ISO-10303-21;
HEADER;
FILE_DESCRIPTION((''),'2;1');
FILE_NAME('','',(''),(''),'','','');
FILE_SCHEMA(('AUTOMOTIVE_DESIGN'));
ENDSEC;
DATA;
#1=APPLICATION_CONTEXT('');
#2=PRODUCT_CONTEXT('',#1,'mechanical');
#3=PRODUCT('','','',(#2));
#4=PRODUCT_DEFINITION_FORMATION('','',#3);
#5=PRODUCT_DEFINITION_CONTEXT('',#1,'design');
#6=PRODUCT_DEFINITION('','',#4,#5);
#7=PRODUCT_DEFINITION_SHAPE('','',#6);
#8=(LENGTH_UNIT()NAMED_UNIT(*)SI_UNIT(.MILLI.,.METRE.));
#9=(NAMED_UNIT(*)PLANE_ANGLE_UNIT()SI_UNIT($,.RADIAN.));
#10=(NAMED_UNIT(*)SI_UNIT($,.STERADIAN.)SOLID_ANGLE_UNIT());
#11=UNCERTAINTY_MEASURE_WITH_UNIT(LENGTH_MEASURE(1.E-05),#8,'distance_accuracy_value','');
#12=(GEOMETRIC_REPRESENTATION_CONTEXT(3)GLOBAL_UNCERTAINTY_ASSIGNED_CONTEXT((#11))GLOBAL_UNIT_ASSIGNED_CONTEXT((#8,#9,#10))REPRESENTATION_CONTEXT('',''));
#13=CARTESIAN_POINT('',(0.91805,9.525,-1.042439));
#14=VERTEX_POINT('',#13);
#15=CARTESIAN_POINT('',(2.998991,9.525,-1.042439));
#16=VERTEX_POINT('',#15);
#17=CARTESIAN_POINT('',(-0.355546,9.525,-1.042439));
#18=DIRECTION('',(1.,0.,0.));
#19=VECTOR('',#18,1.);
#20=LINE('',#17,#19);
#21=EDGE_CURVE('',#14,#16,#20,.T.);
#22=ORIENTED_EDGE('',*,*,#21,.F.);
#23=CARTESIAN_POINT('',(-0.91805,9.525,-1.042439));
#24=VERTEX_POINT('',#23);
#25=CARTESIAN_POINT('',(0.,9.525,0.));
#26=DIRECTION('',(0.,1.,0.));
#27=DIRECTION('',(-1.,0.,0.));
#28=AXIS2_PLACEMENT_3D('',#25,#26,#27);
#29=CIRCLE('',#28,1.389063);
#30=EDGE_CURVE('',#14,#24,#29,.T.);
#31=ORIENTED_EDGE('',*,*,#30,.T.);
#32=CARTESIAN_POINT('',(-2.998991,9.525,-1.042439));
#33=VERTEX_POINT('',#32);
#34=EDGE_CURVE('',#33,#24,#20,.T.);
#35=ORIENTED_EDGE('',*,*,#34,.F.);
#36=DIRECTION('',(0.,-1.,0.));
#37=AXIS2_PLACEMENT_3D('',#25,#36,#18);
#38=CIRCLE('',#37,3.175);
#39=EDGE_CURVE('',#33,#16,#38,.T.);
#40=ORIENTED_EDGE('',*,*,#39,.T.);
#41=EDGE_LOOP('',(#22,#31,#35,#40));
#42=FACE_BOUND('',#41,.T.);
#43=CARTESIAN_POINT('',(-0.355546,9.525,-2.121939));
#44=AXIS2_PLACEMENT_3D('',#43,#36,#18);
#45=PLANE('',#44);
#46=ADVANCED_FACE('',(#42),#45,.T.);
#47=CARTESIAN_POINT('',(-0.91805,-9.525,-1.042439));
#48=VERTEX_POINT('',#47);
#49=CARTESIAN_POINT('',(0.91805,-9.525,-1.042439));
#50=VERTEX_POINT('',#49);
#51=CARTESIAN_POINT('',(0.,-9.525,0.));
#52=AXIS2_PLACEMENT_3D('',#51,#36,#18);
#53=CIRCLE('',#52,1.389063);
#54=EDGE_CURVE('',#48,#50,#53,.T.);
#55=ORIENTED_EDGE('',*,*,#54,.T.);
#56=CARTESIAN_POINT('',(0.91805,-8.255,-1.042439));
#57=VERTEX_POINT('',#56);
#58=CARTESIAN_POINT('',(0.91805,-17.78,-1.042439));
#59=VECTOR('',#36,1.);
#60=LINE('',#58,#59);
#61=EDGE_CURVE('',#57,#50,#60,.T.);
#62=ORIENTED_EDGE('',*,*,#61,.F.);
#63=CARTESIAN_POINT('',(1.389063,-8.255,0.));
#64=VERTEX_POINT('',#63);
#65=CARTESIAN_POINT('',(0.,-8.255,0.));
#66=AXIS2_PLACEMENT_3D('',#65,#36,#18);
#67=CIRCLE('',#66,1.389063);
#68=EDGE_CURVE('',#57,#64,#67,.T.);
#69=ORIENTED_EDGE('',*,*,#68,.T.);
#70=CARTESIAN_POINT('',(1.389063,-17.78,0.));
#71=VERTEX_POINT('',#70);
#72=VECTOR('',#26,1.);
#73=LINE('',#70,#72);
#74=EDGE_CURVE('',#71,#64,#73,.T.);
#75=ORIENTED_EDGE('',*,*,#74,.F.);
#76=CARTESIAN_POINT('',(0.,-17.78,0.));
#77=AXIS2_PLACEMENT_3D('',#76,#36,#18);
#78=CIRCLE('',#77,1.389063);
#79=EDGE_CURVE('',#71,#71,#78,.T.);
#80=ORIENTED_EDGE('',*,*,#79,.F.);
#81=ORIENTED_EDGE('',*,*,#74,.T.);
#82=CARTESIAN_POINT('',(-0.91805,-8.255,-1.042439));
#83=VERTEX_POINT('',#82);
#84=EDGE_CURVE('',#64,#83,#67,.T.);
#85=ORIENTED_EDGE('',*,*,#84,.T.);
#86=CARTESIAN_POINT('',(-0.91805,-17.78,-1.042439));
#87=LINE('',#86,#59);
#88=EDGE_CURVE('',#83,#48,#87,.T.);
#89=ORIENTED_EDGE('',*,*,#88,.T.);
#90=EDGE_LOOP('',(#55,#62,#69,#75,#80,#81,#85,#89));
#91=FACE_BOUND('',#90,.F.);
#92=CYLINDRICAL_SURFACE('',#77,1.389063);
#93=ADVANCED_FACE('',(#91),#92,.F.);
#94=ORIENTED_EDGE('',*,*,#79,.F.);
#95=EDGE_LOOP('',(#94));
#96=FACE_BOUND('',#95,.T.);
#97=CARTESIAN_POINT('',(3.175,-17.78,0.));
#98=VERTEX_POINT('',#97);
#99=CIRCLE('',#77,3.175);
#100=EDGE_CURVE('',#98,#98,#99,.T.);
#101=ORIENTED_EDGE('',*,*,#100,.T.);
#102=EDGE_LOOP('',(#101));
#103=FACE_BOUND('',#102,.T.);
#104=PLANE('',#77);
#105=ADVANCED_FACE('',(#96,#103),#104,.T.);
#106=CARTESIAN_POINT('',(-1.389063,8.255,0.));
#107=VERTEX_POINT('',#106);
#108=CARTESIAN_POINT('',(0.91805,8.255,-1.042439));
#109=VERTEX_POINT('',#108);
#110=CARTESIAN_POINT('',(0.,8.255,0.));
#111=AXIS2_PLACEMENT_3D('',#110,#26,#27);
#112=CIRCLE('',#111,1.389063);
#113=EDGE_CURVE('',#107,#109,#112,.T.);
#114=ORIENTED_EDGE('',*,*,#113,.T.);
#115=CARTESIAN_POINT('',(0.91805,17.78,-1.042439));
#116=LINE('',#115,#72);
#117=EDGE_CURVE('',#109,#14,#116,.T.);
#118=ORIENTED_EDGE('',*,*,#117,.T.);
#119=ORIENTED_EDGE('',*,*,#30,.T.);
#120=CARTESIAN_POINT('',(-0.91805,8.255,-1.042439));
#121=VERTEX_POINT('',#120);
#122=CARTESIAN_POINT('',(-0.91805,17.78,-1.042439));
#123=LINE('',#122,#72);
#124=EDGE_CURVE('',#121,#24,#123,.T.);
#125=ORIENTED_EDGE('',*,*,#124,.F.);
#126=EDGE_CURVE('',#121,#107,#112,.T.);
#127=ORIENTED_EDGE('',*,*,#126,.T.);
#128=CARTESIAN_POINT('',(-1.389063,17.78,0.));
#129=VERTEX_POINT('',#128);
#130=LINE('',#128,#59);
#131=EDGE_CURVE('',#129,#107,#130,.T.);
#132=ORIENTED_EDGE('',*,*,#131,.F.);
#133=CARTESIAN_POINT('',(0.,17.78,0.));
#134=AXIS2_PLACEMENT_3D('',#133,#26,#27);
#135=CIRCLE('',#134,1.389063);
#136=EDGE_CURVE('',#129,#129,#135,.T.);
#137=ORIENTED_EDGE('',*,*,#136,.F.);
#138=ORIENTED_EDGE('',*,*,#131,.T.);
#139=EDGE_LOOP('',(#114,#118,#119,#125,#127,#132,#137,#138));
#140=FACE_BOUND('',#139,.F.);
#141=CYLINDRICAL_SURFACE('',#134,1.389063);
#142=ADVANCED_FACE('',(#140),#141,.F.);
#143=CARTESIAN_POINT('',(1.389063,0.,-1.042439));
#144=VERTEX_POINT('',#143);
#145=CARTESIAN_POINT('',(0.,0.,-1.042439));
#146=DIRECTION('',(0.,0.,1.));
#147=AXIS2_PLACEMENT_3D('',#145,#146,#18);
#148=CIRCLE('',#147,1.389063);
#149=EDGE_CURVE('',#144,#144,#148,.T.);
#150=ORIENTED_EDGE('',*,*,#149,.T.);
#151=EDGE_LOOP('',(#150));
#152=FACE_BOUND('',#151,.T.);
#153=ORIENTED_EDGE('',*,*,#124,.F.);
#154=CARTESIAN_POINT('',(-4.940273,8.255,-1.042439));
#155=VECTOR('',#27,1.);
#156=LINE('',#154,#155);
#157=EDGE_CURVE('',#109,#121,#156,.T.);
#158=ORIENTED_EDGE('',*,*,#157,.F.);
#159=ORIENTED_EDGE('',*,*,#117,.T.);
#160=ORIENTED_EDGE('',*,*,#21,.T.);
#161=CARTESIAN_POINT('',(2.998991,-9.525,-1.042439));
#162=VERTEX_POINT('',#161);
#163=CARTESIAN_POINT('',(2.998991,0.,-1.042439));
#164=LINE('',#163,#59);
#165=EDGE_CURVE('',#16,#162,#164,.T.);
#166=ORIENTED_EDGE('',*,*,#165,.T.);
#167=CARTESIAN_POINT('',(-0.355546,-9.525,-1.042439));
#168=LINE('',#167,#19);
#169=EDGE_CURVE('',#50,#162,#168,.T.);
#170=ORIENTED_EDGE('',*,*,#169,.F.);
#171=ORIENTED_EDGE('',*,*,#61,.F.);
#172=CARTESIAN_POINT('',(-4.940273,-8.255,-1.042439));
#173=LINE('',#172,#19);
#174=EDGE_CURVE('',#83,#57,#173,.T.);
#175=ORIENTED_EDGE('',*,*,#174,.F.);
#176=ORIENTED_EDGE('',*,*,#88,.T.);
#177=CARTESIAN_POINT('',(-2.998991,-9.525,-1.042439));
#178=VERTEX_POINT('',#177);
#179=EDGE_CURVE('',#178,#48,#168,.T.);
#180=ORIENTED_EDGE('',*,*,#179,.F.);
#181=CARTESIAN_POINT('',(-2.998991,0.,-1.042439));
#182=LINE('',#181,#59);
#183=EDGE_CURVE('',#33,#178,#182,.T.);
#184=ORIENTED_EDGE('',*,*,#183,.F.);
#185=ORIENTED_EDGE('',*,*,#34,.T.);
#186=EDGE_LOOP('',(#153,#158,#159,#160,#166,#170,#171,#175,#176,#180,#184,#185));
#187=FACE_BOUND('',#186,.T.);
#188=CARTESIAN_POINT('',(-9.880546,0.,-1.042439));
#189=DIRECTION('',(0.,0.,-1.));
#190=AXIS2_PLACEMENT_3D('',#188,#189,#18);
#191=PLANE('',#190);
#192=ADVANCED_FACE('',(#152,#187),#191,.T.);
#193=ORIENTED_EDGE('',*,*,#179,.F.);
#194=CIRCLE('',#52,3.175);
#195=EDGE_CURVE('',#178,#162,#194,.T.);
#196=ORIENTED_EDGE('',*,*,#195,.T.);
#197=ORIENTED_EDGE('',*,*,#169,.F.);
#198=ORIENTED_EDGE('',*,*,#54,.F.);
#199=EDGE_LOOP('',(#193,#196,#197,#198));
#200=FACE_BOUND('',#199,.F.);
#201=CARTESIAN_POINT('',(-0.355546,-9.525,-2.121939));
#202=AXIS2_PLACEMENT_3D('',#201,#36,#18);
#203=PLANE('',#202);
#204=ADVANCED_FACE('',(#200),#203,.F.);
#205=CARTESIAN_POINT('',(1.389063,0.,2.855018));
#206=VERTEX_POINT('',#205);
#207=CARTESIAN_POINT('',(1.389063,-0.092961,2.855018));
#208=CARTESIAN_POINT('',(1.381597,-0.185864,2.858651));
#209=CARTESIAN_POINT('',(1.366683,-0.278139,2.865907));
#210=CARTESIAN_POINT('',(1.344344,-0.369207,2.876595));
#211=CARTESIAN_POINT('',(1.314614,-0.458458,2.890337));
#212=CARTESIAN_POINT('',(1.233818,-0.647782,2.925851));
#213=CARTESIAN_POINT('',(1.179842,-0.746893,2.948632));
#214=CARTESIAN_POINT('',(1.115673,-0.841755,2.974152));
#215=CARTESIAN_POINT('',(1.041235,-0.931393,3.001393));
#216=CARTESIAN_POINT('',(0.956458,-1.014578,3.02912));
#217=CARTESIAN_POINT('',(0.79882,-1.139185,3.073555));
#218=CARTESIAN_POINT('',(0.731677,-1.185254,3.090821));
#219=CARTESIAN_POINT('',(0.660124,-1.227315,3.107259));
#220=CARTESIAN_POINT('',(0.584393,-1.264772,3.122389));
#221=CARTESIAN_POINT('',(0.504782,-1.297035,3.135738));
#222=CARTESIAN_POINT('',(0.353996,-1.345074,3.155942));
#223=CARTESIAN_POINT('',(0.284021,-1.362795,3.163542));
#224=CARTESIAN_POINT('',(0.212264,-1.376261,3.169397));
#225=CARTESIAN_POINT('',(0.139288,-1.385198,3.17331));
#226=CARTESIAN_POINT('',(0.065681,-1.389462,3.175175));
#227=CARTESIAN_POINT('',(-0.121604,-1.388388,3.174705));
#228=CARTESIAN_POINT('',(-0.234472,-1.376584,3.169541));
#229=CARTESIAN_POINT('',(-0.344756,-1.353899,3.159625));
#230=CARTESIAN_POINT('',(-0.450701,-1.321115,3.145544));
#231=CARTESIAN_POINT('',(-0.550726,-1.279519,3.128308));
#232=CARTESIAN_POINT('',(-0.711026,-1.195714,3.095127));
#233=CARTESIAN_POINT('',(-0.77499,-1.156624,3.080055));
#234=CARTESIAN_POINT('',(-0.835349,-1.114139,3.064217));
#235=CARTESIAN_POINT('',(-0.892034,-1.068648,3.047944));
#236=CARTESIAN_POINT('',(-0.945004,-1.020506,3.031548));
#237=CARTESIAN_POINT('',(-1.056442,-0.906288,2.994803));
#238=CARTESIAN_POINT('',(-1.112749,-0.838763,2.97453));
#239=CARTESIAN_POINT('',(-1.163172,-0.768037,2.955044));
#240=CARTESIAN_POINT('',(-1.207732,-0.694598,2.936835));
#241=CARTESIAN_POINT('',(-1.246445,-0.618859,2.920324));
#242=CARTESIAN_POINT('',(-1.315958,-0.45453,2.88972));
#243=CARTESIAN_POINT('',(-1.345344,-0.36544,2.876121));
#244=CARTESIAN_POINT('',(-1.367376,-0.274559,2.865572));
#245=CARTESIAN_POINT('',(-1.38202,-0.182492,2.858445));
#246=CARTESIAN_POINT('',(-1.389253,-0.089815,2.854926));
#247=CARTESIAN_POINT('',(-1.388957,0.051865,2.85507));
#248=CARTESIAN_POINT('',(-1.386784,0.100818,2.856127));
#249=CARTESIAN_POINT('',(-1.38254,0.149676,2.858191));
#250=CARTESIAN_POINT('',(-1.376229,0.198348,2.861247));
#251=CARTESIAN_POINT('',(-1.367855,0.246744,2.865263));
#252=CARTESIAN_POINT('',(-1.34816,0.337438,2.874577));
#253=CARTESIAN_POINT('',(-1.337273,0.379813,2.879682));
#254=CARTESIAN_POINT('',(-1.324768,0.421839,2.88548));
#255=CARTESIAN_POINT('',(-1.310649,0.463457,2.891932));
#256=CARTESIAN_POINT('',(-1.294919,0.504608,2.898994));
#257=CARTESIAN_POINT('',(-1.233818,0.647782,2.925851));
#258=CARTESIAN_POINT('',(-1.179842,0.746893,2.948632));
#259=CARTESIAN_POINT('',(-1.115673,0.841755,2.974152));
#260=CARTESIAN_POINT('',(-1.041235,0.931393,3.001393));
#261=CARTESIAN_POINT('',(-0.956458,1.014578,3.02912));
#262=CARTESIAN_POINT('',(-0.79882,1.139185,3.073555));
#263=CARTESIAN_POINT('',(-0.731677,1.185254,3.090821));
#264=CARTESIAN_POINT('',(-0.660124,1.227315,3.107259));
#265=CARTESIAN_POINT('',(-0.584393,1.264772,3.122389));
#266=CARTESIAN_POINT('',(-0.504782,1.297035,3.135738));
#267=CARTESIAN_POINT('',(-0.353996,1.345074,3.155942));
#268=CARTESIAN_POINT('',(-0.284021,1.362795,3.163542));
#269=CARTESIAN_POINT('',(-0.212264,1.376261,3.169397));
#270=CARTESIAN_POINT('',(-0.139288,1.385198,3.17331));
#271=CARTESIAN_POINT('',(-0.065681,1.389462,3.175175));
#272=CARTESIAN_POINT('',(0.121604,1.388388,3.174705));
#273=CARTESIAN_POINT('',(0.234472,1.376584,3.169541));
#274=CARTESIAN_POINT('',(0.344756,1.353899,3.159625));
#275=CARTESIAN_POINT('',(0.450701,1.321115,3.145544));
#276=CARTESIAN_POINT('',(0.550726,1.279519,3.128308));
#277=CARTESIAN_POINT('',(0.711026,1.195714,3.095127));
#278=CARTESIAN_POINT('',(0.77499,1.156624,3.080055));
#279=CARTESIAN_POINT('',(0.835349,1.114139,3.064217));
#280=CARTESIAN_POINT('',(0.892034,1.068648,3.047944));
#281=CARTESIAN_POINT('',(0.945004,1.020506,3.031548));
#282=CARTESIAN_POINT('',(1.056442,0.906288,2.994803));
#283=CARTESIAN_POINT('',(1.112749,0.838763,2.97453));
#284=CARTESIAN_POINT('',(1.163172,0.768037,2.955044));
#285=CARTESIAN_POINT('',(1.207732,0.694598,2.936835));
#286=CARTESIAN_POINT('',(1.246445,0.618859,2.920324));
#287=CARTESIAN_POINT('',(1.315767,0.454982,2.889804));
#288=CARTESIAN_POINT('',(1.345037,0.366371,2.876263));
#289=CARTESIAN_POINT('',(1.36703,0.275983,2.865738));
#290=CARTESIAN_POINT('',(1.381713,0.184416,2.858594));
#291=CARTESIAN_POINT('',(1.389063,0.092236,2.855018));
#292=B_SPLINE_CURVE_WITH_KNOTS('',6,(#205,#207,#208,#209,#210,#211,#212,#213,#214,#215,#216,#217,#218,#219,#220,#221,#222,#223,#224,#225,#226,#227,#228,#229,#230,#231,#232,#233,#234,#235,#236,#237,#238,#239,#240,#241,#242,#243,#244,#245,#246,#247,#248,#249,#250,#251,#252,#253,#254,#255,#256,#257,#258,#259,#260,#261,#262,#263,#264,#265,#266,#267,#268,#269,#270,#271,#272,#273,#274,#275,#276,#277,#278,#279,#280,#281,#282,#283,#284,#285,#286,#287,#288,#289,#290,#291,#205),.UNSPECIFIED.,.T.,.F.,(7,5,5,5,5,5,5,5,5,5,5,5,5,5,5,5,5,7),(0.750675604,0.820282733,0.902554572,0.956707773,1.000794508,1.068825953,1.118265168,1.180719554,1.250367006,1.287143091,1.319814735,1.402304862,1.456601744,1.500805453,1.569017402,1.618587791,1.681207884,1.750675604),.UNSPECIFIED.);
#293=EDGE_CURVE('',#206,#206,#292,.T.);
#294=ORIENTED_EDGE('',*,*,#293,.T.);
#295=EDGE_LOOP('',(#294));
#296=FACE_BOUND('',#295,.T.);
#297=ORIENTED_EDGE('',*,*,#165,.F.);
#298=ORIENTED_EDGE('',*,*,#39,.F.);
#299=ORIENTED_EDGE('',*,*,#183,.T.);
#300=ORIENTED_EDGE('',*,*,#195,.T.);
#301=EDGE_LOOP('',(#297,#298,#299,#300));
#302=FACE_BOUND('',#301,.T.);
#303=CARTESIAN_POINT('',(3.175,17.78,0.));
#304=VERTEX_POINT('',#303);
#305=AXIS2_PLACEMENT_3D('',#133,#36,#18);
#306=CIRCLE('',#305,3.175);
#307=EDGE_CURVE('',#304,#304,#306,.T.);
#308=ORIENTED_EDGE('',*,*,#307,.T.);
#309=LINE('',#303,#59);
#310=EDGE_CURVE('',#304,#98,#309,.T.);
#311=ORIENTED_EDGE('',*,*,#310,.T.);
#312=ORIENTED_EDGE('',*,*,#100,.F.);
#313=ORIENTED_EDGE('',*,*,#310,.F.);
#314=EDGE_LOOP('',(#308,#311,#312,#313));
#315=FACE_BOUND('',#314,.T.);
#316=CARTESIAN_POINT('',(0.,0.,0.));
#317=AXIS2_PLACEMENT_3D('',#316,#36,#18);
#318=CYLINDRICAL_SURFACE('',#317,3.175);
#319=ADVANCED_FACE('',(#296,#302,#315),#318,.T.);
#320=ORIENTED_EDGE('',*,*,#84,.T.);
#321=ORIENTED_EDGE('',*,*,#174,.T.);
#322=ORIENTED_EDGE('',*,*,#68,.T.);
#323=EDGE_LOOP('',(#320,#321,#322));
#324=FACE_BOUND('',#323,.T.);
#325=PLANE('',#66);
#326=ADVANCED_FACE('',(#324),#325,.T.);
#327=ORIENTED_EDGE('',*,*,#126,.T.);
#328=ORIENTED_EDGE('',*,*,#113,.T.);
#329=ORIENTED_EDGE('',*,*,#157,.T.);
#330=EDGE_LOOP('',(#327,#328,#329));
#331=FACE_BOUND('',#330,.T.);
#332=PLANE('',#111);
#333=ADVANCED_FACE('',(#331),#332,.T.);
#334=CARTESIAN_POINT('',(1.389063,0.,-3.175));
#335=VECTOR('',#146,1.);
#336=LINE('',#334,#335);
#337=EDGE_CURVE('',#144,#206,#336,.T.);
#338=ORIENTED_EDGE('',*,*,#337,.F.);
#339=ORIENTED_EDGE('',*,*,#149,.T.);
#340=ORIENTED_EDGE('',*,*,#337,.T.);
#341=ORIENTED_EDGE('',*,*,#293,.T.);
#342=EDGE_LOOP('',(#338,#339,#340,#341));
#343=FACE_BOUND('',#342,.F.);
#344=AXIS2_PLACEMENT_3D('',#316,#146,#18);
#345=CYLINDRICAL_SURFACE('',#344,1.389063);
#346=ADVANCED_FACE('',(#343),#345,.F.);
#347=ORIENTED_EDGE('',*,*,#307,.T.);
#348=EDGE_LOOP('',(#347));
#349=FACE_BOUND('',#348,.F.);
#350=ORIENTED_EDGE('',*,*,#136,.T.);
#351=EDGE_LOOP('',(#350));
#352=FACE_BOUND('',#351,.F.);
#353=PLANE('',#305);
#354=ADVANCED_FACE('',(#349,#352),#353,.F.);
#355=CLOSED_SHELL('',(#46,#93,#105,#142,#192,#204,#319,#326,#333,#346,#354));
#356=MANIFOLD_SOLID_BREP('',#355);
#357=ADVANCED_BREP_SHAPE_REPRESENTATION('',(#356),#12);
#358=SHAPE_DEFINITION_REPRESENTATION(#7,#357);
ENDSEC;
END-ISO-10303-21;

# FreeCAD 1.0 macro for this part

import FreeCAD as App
import Part
import Sketcher
from FreeCAD import Vector
Q = App.Units.Quantity


def add_polygon(sketch, points):
    """Adds a closed chain of lines whose ends are joined by coincident constraints."""
    first, n = sketch.GeometryCount, len(points)
    for a, b in zip(points, points[1:] + points[:1]):
        sketch.addGeometry(Part.LineSegment(App.Vector(*a, 0), App.Vector(*b, 0)), False)
    for i in range(n):
        sketch.addConstraint(Sketcher.Constraint("Coincident", first + i, 2, first + (i + 1) % n, 1))

doc = App.newDocument("Part")
body = doc.addObject("PartDesign::Body", "Body")

sketch1 = body.newObject("Sketcher::SketchObject", "Sketch")
sketch1.AttachmentSupport = (doc.getObject("XZ_Plane"), [""])
sketch1.MapMode = "FlatFace"
sketch1.addGeometry(Part.Circle(Vector(0, 0, 0), Vector(0, 0, 1), 3.2), False)
sketch1.addConstraint([
    Sketcher.Constraint("Coincident", 0, 3, -1, 1),
    Sketcher.Constraint("Diameter", 0, Q("0.25 in")),
])
pad1 = body.newObject("PartDesign::Pad", "Pad")
pad1.Profile = sketch1
pad1.Length = Q("1.4 in")
pad1.Midplane = True

sketch2 = body.newObject("Sketcher::SketchObject", "Sketch001")
sketch2.AttachmentSupport = (doc.getObject("XZ_Plane"), [""])
sketch2.MapMode = "FlatFace"
sketch2.AttachmentOffset = App.Placement(Vector(0, 0, 0.7 * 25.4), App.Rotation())
sketch2.addGeometry(Part.Circle(Vector(0, 0, 0), Vector(0, 0, 1), 1.4), False)
sketch2.addConstraint([
    Sketcher.Constraint("Coincident", 0, 3, -1, 1),
    Sketcher.Constraint("Diameter", 0, Q("0.109375 in")),
])
pocket1 = body.newObject("PartDesign::Pocket", "Pocket")
pocket1.Profile = sketch2
pocket1.Length = Q("0.375 in")

sketch3 = body.newObject("Sketcher::SketchObject", "Sketch002")
sketch3.AttachmentSupport = (doc.getObject("XZ_Plane"), [""])
sketch3.MapMode = "FlatFace"
sketch3.AttachmentOffset = App.Placement(Vector(0, 0, -0.7 * 25.4), App.Rotation())
sketch3.addGeometry(Part.Circle(Vector(0, 0, 0), Vector(0, 0, 1), 1.4), False)
sketch3.addConstraint([
    Sketcher.Constraint("Coincident", 0, 3, -1, 1),
    Sketcher.Constraint("Diameter", 0, Q("0.109375 in")),
])
pocket2 = body.newObject("PartDesign::Pocket", "Pocket001")
pocket2.Profile = sketch3
pocket2.Length = Q("0.375 in")
pocket2.Reversed = True

sketch4 = body.newObject("Sketcher::SketchObject", "Sketch003")
sketch4.AttachmentSupport = (doc.getObject("XZ_Plane"), [""])
sketch4.MapMode = "FlatFace"
add_polygon(sketch4, [(-9.9, -1), (-9.9, -3.2), (9.2, -3.2), (9.2, -1)])
sketch4.addConstraint([
    Sketcher.Constraint("Vertical", 0),
    Sketcher.Constraint("Horizontal", 1),
    Sketcher.Constraint("Vertical", 2),
    Sketcher.Constraint("Horizontal", 3),
    Sketcher.Constraint("DistanceX", 1, 1, 1, 2, Q("0.75 in")),
    Sketcher.Constraint("DistanceY", 0, 2, 0, 1, Q("0.085 in")),
    Sketcher.Constraint("DistanceY", 0, 2, -1, 1, Q("3.201439 mm")),
    Sketcher.Constraint("DistanceX", 0, 2, -1, 1, Q("9.880546 mm")),
])
pocket3 = body.newObject("PartDesign::Pocket", "Pocket002")
pocket3.Profile = sketch4
pocket3.Length = Q("0.75 in")
pocket3.Midplane = True

sketch5 = body.newObject("Sketcher::SketchObject", "Sketch004")
sketch5.AttachmentSupport = (doc.getObject("XY_Plane"), [""])
sketch5.MapMode = "FlatFace"
sketch5.addGeometry(Part.Circle(Vector(0, 0, 0), Vector(0, 0, 1), 1.4), False)
sketch5.addConstraint([
    Sketcher.Constraint("Coincident", 0, 3, -1, 1),
    Sketcher.Constraint("Diameter", 0, Q("0.109375 in")),
])
pocket4 = body.newObject("PartDesign::Pocket", "Pocket003")
pocket4.Profile = sketch5
pocket4.Length = Q("0.25 in")
pocket4.Midplane = True

doc.recompute()
